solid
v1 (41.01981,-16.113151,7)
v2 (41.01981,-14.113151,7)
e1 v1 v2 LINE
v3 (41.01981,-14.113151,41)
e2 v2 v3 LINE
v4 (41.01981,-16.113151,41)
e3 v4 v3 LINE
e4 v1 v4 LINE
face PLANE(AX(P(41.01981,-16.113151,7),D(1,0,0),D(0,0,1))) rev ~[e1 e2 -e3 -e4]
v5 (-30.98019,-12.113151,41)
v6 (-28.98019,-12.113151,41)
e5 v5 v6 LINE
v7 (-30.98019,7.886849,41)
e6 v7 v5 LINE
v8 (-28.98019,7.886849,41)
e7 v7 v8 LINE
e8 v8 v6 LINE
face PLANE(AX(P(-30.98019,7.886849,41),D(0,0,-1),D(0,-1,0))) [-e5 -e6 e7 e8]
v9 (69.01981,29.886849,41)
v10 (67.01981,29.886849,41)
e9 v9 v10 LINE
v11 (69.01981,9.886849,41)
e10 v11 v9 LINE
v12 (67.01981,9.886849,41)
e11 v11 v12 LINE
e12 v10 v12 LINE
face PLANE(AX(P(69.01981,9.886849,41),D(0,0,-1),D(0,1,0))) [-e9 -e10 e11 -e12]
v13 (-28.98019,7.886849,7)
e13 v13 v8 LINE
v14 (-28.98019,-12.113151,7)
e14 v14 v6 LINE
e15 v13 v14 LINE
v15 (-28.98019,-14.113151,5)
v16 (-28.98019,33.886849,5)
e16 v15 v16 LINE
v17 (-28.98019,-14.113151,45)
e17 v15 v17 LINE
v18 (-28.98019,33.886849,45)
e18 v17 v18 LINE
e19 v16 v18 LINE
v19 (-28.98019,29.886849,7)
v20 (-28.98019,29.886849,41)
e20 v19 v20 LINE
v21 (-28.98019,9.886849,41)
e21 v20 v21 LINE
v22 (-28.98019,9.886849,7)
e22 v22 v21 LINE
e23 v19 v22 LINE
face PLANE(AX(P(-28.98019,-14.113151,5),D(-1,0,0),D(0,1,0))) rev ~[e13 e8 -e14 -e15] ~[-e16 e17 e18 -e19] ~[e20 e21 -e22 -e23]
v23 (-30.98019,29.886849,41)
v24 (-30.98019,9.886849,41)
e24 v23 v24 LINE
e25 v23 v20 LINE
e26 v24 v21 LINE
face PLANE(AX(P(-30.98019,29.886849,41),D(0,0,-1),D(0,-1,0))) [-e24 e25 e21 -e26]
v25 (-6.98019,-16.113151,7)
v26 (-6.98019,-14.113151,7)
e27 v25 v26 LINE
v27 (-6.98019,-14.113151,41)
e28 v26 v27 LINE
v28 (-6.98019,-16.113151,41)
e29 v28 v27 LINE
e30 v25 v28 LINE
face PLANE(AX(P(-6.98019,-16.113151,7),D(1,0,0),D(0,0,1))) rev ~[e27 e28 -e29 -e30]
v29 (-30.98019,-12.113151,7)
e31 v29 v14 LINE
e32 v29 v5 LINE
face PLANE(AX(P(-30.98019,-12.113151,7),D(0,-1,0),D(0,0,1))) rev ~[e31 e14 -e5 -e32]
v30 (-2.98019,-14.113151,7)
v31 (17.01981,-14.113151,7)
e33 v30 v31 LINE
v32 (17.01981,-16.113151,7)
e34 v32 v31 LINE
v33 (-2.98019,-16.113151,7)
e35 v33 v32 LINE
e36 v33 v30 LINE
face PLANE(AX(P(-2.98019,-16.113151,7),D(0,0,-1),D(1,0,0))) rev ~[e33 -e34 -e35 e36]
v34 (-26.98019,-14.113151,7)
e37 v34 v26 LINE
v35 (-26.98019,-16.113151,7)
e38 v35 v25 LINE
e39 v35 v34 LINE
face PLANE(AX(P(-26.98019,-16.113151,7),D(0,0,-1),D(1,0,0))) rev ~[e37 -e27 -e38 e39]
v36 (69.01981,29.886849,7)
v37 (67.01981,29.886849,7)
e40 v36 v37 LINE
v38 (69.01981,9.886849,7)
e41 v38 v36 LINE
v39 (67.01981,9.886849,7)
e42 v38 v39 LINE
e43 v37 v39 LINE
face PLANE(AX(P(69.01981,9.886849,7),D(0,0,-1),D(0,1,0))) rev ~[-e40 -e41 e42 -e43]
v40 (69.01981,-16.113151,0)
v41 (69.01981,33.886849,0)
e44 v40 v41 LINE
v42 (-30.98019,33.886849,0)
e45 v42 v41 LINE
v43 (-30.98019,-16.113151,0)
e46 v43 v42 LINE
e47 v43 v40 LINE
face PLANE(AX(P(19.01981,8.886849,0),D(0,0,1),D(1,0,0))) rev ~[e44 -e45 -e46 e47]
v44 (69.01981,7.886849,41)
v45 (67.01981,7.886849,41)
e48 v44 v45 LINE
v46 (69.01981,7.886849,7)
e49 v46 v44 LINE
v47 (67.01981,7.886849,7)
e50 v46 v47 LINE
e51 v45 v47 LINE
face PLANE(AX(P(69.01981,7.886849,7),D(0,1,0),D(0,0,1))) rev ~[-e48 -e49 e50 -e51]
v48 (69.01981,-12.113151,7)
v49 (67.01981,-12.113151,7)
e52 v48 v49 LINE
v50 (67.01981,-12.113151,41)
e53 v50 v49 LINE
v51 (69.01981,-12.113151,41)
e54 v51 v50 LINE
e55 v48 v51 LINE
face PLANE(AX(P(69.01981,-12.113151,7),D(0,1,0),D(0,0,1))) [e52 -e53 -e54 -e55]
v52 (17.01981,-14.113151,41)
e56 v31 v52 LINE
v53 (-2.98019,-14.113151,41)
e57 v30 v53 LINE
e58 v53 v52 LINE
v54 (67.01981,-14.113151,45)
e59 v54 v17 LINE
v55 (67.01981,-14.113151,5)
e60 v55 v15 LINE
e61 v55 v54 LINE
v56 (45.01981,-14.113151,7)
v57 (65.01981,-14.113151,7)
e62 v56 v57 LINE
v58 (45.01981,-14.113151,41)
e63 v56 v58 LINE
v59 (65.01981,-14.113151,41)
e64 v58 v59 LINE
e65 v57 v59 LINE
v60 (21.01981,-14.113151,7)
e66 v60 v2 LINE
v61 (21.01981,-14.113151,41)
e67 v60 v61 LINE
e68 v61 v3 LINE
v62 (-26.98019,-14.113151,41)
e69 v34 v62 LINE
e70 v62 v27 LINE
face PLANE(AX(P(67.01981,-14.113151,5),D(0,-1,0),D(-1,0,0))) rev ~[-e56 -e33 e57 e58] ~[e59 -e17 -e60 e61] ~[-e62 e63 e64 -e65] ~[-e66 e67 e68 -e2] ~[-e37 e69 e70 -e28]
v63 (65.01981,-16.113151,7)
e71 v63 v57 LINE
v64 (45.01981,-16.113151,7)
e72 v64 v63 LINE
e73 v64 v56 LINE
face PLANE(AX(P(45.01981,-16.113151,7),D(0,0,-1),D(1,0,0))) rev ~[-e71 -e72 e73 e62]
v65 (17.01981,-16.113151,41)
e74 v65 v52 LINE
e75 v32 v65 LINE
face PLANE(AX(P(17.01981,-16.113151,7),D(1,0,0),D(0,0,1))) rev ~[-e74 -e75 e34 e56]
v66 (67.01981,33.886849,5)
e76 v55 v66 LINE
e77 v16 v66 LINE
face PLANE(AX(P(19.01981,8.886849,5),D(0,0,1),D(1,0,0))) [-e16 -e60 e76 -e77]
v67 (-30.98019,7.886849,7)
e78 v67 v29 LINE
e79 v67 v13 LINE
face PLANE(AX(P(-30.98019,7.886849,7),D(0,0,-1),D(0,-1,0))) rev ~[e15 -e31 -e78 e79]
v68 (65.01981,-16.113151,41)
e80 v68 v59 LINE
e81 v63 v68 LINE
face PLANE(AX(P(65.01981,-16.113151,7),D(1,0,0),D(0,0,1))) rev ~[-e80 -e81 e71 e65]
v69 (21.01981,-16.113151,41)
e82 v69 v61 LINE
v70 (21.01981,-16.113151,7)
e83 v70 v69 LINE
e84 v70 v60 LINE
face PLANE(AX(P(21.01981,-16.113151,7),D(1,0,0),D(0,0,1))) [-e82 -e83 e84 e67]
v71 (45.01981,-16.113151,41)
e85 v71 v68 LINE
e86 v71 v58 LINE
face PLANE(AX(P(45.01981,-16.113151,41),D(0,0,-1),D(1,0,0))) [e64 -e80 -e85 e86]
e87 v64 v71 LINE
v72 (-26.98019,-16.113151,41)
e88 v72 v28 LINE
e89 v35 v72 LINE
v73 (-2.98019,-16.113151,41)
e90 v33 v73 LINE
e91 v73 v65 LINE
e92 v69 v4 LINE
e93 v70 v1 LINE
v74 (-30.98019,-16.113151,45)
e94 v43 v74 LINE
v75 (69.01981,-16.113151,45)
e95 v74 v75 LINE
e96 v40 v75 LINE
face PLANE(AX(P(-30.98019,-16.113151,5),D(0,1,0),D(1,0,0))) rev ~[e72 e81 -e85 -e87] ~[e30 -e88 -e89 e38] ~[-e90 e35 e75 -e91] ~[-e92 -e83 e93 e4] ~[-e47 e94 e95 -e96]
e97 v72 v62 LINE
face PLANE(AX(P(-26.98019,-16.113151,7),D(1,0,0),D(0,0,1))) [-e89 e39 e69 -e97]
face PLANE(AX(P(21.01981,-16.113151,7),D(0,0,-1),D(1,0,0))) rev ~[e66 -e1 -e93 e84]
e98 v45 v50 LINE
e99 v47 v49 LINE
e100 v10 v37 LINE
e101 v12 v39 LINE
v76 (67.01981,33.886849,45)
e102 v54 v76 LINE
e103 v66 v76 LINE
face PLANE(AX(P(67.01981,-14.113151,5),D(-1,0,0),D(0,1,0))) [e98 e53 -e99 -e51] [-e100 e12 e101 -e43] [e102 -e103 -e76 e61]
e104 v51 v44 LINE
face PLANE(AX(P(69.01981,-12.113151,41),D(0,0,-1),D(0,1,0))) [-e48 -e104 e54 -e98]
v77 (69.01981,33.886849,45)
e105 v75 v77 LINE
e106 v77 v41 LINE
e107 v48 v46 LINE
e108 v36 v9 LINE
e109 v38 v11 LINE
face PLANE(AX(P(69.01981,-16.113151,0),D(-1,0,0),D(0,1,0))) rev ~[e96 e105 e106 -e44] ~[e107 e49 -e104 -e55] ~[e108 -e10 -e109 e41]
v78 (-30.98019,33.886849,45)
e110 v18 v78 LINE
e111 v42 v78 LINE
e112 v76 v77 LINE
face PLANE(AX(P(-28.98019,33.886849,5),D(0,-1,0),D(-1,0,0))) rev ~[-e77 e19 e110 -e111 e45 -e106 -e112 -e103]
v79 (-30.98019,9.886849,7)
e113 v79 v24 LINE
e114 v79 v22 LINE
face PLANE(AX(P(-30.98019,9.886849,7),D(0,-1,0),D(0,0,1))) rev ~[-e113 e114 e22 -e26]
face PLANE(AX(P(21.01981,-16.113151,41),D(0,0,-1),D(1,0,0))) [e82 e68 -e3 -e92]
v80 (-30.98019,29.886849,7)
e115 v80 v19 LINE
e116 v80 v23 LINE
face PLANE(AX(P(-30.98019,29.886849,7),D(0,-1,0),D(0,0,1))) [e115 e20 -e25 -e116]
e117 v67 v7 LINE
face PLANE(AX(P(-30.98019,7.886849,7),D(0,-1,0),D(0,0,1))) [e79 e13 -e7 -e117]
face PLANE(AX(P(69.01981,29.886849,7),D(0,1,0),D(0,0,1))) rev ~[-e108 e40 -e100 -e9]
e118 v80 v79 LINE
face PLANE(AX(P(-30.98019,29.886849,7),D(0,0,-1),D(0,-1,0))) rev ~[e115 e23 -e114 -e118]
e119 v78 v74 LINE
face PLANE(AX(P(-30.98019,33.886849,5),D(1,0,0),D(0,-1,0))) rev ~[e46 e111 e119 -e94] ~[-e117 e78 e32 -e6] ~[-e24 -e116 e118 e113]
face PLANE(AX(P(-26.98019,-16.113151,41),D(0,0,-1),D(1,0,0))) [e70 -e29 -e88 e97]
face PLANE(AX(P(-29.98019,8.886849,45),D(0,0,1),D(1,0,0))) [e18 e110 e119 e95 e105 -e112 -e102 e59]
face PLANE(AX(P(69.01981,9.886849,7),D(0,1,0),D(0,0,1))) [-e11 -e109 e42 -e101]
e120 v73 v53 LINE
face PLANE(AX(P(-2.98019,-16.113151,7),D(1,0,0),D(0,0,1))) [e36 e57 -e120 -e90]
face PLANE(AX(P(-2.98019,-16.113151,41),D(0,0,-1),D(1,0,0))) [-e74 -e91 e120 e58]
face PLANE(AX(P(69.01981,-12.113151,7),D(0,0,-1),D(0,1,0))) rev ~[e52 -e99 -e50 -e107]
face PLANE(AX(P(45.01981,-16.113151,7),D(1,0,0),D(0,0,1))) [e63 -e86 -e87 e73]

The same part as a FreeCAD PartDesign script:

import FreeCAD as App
import Part
import Sketcher

V = App.Vector
Q = App.Units.Quantity


def add_polygon(sketch, points):
    """Adds a closed chain of lines whose ends are joined by coincident constraints."""
    first, n = sketch.GeometryCount, len(points)
    for a, b in zip(points, points[1:] + points[:1]):
        sketch.addGeometry(Part.LineSegment(App.Vector(*a, 0), App.Vector(*b, 0)), False)
    for i in range(n):
        sketch.addConstraint(Sketcher.Constraint("Coincident", first + i, 2, first + (i + 1) % n, 1))

doc = App.newDocument("Part")
params = doc.addObject("Spreadsheet::Sheet", "Params")
for row, (alias, value) in enumerate([
    ("sketch1_width", "100 mm"),
    ("sketch1_height", "50 mm"),
    ("pad1_length", "5 mm"),
    ("sketch2_width", "2 mm"),
    ("sketch2_width2", "100 mm"),
    ("sketch2_height", "50 mm"),
    ("sketch2_height2", "48 mm"),
    ("pad2_length", "40 mm"),
    ("sketch3_width", "20 mm"),
    ("sketch3_height", "34 mm"),
    ("pocket1_length", "5 mm"),
    ("sketch4_width", "20 mm"),
    ("sketch4_height", "34 mm"),
    ("pocket2_length", "5 mm"),
    ("sketch5_width", "20 mm"),
    ("sketch5_height", "34 mm"),
    ("pocket3_length", "5 mm"),
], start=1):
    params.set(f"A{row}", alias)
    params.set(f"B{row}", "=" + value)
    params.setAlias(f"B{row}", alias)

body = doc.addObject("PartDesign::Body", "Body")

sketch1 = body.newObject("Sketcher::SketchObject", "Sketch")
sketch1.AttachmentSupport = (doc.getObject("XY_Plane"), [""])
sketch1.MapMode = "FlatFace"
add_polygon(sketch1, [(-31, 34), (-31, -16), (69, -16), (69, 34)])
sketch1.addConstraint([
    Sketcher.Constraint("Vertical", 0),
    Sketcher.Constraint("Horizontal", 1),
    Sketcher.Constraint("Vertical", 2),
    Sketcher.Constraint("Horizontal", 3),
    Sketcher.Constraint("DistanceX", 1, 1, 1, 2, Q("100 mm")),
    Sketcher.Constraint("DistanceY", 0, 2, 0, 1, Q("50 mm")),
    Sketcher.Constraint("DistanceX", 0, 2, -1, 1, Q("30.98019 mm")),
    Sketcher.Constraint("DistanceY", 0, 2, -1, 1, Q("16.113151 mm")),
])
sketch1.setExpression("Constraints[8]", "Params.sketch1_width")
sketch1.setExpression("Constraints[9]", "Params.sketch1_height")
pad1 = body.newObject("PartDesign::Pad", "Pad")
pad1.Profile = sketch1
pad1.setExpression("Length", "Params.pad1_length")

sketch2 = body.newObject("Sketcher::SketchObject", "Sketch001")
sketch2.AttachmentSupport = (doc.getObject("XY_Plane"), [""])
sketch2.MapMode = "FlatFace"
sketch2.AttachmentOffset = App.Placement(V(0, 0, 5), App.Rotation())
add_polygon(sketch2, [(-29, 33.9), (-31, 33.9), (-31, -16.1), (69, -16.1), (69, 33.9), (67, 33.9), (67, -14.1), (-29, -14.1)])
sketch2.addConstraint([
    Sketcher.Constraint("Horizontal", 0),
    Sketcher.Constraint("Vertical", 1),
    Sketcher.Constraint("Horizontal", 2),
    Sketcher.Constraint("Vertical", 3),
    Sketcher.Constraint("Horizontal", 4),
    Sketcher.Constraint("Vertical", 5),
    Sketcher.Constraint("Horizontal", 6),
    Sketcher.Constraint("Vertical", 7),
    Sketcher.Constraint("Horizontal", 0, 2, 3, 2),
    Sketcher.Constraint("Equal", 0, 4),
    Sketcher.Constraint("DistanceX", 0, 2, 0, 1, Q("2 mm")),
    Sketcher.Constraint("DistanceX", 2, 1, 2, 2, Q("100 mm")),
    Sketcher.Constraint("DistanceY", 1, 2, 1, 1, Q("50 mm")),
    Sketcher.Constraint("DistanceY", 5, 2, 5, 1, Q("48 mm")),
    Sketcher.Constraint("DistanceX", 0, 2, -1, 1, Q("30.98019 mm")),
    Sketcher.Constraint("DistanceY", -1, 1, 0, 2, Q("33.886849 mm")),
])
sketch2.setExpression("Constraints[18]", "Params.sketch2_width")
sketch2.setExpression("Constraints[19]", "Params.sketch2_width2")
sketch2.setExpression("Constraints[20]", "Params.sketch2_height")
sketch2.setExpression("Constraints[21]", "Params.sketch2_height2")
pad2 = body.newObject("PartDesign::Pad", "Pad001")
pad2.Profile = sketch2
pad2.setExpression("Length", "Params.pad2_length")

sketch3 = body.newObject("Sketcher::SketchObject", "Sketch002")
sketch3.AttachmentSupport = (doc.getObject("XZ_Plane"), [""])
sketch3.MapMode = "FlatFace"
sketch3.AttachmentOffset = App.Placement(V(0, 0, 16.113151), App.Rotation())
add_polygon(sketch3, [(-27, 41), (-27, 7), (-7, 7), (-7, 41)])
add_polygon(sketch3, [(-3, 41), (-3, 7), (17, 7), (17, 41)])
add_polygon(sketch3, [(21, 41), (21, 7), (41, 7), (41, 41)])
add_polygon(sketch3, [(45, 41), (45, 7), (65, 7), (65, 41)])
sketch3.addConstraint([
    Sketcher.Constraint("Vertical", 0),
    Sketcher.Constraint("Horizontal", 1),
    Sketcher.Constraint("Vertical", 2),
    Sketcher.Constraint("Horizontal", 3),
    Sketcher.Constraint("Vertical", 4),
    Sketcher.Constraint("Horizontal", 5),
    Sketcher.Constraint("Vertical", 6),
    Sketcher.Constraint("Horizontal", 7),
    Sketcher.Constraint("Vertical", 8),
    Sketcher.Constraint("Horizontal", 9),
    Sketcher.Constraint("Vertical", 10),
    Sketcher.Constraint("Horizontal", 11),
    Sketcher.Constraint("Vertical", 12),
    Sketcher.Constraint("Horizontal", 13),
    Sketcher.Constraint("Vertical", 14),
    Sketcher.Constraint("Horizontal", 15),
    Sketcher.Constraint("Horizontal", 1, 2, 4, 2),
    Sketcher.Constraint("Horizontal", 3, 2, 6, 2),
    Sketcher.Constraint("Horizontal", 5, 2, 8, 2),
    Sketcher.Constraint("Horizontal", 7, 2, 10, 2),
    Sketcher.Constraint("Horizontal", 9, 2, 12, 2),
    Sketcher.Constraint("Horizontal", 11, 2, 14, 2),
    Sketcher.Constraint("Equal", 3, 5),
    Sketcher.Constraint("Equal", 7, 9),
    Sketcher.Constraint("Equal", 11, 13),
    Sketcher.Constraint("DistanceX", 1, 1, 1, 2, Q("20 mm")),
    Sketcher.Constraint("DistanceY", 0, 2, 0, 1, Q("34 mm")),
    Sketcher.Constraint("DistanceY", -1, 1, 0, 2, Q("7 mm")),
    Sketcher.Constraint("DistanceX", 1, 2, 4, 2, Q("4 mm")),
    Sketcher.Constraint("DistanceX", 5, 2, 8, 2, Q("4 mm")),
    Sketcher.Constraint("DistanceX", 9, 2, 12, 2, Q("4 mm")),
    Sketcher.Constraint("DistanceX", 0, 2, -1, 1, Q("26.98019 mm")),
])
sketch3.setExpression("Constraints[41]", "Params.sketch3_width")
sketch3.setExpression("Constraints[42]", "Params.sketch3_height")
pocket1 = body.newObject("PartDesign::Pocket", "Pocket")
pocket1.Profile = sketch3
pocket1.setExpression("Length", "Params.pocket1_length")

sketch4 = body.newObject("Sketcher::SketchObject", "Sketch003")
sketch4.AttachmentSupport = (doc.getObject("YZ_Plane"), [""])
sketch4.MapMode = "FlatFace"
sketch4.AttachmentOffset = App.Placement(V(0, 0, -30.98019), App.Rotation())
add_polygon(sketch4, [(30, 41), (30, 7), (10, 7), (10, 41)])
add_polygon(sketch4, [(8, 41), (8, 7), (-12, 7), (-12, 41)])
sketch4.addConstraint([
    Sketcher.Constraint("Vertical", 0),
    Sketcher.Constraint("Horizontal", 1),
    Sketcher.Constraint("Vertical", 2),
    Sketcher.Constraint("Horizontal", 3),
    Sketcher.Constraint("Vertical", 4),
    Sketcher.Constraint("Horizontal", 5),
    Sketcher.Constraint("Vertical", 6),
    Sketcher.Constraint("Horizontal", 7),
    Sketcher.Constraint("Horizontal", 1, 2, 4, 2),
    Sketcher.Constraint("Horizontal", 3, 2, 6, 2),
    Sketcher.Constraint("Equal", 3, 5),
    Sketcher.Constraint("DistanceX", 1, 2, 1, 1, Q("20 mm")),
    Sketcher.Constraint("DistanceY", 0, 2, 0, 1, Q("34 mm")),
    Sketcher.Constraint("DistanceY", -1, 1, 0, 2, Q("7 mm")),
    Sketcher.Constraint("DistanceX", 4, 2, 1, 2, Q("2 mm")),
    Sketcher.Constraint("DistanceX", -1, 1, 0, 2, Q("29.886849 mm")),
])
sketch4.setExpression("Constraints[19]", "Params.sketch4_width")
sketch4.setExpression("Constraints[20]", "Params.sketch4_height")
pocket2 = body.newObject("PartDesign::Pocket", "Pocket001")
pocket2.Profile = sketch4
pocket2.setExpression("Length", "Params.pocket2_length")
pocket2.Reversed = True

sketch5 = body.newObject("Sketcher::SketchObject", "Sketch004")
sketch5.AttachmentSupport = (doc.getObject("YZ_Plane"), [""])
sketch5.MapMode = "FlatFace"
sketch5.AttachmentOffset = App.Placement(V(0, 0, 69.01981), App.Rotation())
add_polygon(sketch5, [(-12, 41), (-12, 7), (8, 7), (8, 41)])
add_polygon(sketch5, [(10, 41), (10, 7), (30, 7), (30, 41)])
sketch5.addConstraint([
    Sketcher.Constraint("Vertical", 0),
    Sketcher.Constraint("Horizontal", 1),
    Sketcher.Constraint("Vertical", 2),
    Sketcher.Constraint("Horizontal", 3),
    Sketcher.Constraint("Vertical", 4),
    Sketcher.Constraint("Horizontal", 5),
    Sketcher.Constraint("Vertical", 6),
    Sketcher.Constraint("Horizontal", 7),
    Sketcher.Constraint("Horizontal", 1, 2, 4, 2),
    Sketcher.Constraint("Horizontal", 3, 2, 6, 2),
    Sketcher.Constraint("Equal", 3, 5),
    Sketcher.Constraint("DistanceX", 1, 1, 1, 2, Q("20 mm")),
    Sketcher.Constraint("DistanceY", 0, 2, 0, 1, Q("34 mm")),
    Sketcher.Constraint("DistanceY", -1, 1, 0, 2, Q("7 mm")),
    Sketcher.Constraint("DistanceX", 1, 2, 4, 2, Q("2 mm")),
    Sketcher.Constraint("DistanceX", 0, 2, -1, 1, Q("12.113151 mm")),
])
sketch5.setExpression("Constraints[19]", "Params.sketch5_width")
sketch5.setExpression("Constraints[20]", "Params.sketch5_height")
pocket3 = body.newObject("PartDesign::Pocket", "Pocket002")
pocket3.Profile = sketch5
pocket3.setExpression("Length", "Params.pocket3_length")

doc.recompute()
